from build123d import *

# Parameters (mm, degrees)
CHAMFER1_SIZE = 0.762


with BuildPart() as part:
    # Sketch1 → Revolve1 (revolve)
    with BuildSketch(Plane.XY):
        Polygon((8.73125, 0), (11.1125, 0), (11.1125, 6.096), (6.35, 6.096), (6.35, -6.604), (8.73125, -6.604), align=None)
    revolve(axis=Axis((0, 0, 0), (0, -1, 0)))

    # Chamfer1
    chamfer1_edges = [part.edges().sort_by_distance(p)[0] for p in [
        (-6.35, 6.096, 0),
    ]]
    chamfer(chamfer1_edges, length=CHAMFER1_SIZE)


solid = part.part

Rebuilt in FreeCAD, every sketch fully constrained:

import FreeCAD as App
import Part
import Sketcher
Q = App.Units.Quantity


def edges_at(feature, points):
    """Names of the edges that pass closest to the given points."""
    edges = feature.Shape.Edges
    near = lambda p: min(range(len(edges)), key=lambda i: edges[i].distToShape(Part.Vertex(*p))[0])
    return sorted({f"Edge{near(p) + 1}" for p in points})

doc = App.newDocument("Part")
body = doc.addObject("PartDesign::Body", "Body")

sketch1 = body.newObject("Sketcher::SketchObject", "Sketch")
sketch1.AttachmentSupport = (doc.getObject("XY_Plane"), [""])
sketch1.MapMode = "FlatFace"
sketch1.addGeometry([
    Part.LineSegment(App.Vector(8.7, 0, 0), App.Vector(11.1, 0, 0)),
    Part.LineSegment(App.Vector(11.1, 0, 0), App.Vector(11.1, 6.1, 0)),
    Part.LineSegment(App.Vector(11.1, 6.1, 0), App.Vector(6.3, 6.1, 0)),
    Part.LineSegment(App.Vector(6.3, 6.1, 0), App.Vector(6.3, -6.6, 0)),
    Part.LineSegment(App.Vector(6.3, -6.6, 0), App.Vector(8.7, -6.6, 0)),
    Part.LineSegment(App.Vector(8.7, -6.6, 0), App.Vector(8.7, 0, 0)),
], False)
sketch1.addConstraint([
    Sketcher.Constraint("Coincident", 0, 2, 1, 1),
    Sketcher.Constraint("Coincident", 1, 2, 2, 1),
    Sketcher.Constraint("Coincident", 2, 2, 3, 1),
    Sketcher.Constraint("Coincident", 3, 2, 4, 1),
    Sketcher.Constraint("Coincident", 4, 2, 5, 1),
    Sketcher.Constraint("Coincident", 5, 2, 0, 1),
    Sketcher.Constraint("Horizontal", 0),
    Sketcher.Constraint("Vertical", 1),
    Sketcher.Constraint("Horizontal", 2),
    Sketcher.Constraint("Vertical", 3),
    Sketcher.Constraint("Horizontal", 4),
    Sketcher.Constraint("Vertical", 5),
    Sketcher.Constraint("PointOnObject", 0, 2, -1),
    Sketcher.Constraint("Equal", 0, 4),
    Sketcher.Constraint("DistanceY", 3, 2, 3, 1, Q("0.5 in")),
    Sketcher.Constraint("DistanceY", 1, 1, 1, 2, Q("0.24 in")),
    Sketcher.Constraint("DistanceX", 0, 1, 0, 2, Q("0.09375 in")),
    Sketcher.Constraint("DistanceX", -1, 1, 2, 2, Q("0.25 in")),
])
revolution = body.newObject("PartDesign::Revolution", "Revolution")
revolution.Profile = sketch1
revolution.ReferenceAxis = (sketch1, ["V_Axis"])
revolution.Angle = 360
doc.recompute()

chamfer = body.newObject("PartDesign::Chamfer", "Chamfer")
chamfer.Base = (revolution, edges_at(revolution, [(-6.35, 6.096, 0)]))
chamfer.Size = Q("0.03 in")

doc.recompute()
